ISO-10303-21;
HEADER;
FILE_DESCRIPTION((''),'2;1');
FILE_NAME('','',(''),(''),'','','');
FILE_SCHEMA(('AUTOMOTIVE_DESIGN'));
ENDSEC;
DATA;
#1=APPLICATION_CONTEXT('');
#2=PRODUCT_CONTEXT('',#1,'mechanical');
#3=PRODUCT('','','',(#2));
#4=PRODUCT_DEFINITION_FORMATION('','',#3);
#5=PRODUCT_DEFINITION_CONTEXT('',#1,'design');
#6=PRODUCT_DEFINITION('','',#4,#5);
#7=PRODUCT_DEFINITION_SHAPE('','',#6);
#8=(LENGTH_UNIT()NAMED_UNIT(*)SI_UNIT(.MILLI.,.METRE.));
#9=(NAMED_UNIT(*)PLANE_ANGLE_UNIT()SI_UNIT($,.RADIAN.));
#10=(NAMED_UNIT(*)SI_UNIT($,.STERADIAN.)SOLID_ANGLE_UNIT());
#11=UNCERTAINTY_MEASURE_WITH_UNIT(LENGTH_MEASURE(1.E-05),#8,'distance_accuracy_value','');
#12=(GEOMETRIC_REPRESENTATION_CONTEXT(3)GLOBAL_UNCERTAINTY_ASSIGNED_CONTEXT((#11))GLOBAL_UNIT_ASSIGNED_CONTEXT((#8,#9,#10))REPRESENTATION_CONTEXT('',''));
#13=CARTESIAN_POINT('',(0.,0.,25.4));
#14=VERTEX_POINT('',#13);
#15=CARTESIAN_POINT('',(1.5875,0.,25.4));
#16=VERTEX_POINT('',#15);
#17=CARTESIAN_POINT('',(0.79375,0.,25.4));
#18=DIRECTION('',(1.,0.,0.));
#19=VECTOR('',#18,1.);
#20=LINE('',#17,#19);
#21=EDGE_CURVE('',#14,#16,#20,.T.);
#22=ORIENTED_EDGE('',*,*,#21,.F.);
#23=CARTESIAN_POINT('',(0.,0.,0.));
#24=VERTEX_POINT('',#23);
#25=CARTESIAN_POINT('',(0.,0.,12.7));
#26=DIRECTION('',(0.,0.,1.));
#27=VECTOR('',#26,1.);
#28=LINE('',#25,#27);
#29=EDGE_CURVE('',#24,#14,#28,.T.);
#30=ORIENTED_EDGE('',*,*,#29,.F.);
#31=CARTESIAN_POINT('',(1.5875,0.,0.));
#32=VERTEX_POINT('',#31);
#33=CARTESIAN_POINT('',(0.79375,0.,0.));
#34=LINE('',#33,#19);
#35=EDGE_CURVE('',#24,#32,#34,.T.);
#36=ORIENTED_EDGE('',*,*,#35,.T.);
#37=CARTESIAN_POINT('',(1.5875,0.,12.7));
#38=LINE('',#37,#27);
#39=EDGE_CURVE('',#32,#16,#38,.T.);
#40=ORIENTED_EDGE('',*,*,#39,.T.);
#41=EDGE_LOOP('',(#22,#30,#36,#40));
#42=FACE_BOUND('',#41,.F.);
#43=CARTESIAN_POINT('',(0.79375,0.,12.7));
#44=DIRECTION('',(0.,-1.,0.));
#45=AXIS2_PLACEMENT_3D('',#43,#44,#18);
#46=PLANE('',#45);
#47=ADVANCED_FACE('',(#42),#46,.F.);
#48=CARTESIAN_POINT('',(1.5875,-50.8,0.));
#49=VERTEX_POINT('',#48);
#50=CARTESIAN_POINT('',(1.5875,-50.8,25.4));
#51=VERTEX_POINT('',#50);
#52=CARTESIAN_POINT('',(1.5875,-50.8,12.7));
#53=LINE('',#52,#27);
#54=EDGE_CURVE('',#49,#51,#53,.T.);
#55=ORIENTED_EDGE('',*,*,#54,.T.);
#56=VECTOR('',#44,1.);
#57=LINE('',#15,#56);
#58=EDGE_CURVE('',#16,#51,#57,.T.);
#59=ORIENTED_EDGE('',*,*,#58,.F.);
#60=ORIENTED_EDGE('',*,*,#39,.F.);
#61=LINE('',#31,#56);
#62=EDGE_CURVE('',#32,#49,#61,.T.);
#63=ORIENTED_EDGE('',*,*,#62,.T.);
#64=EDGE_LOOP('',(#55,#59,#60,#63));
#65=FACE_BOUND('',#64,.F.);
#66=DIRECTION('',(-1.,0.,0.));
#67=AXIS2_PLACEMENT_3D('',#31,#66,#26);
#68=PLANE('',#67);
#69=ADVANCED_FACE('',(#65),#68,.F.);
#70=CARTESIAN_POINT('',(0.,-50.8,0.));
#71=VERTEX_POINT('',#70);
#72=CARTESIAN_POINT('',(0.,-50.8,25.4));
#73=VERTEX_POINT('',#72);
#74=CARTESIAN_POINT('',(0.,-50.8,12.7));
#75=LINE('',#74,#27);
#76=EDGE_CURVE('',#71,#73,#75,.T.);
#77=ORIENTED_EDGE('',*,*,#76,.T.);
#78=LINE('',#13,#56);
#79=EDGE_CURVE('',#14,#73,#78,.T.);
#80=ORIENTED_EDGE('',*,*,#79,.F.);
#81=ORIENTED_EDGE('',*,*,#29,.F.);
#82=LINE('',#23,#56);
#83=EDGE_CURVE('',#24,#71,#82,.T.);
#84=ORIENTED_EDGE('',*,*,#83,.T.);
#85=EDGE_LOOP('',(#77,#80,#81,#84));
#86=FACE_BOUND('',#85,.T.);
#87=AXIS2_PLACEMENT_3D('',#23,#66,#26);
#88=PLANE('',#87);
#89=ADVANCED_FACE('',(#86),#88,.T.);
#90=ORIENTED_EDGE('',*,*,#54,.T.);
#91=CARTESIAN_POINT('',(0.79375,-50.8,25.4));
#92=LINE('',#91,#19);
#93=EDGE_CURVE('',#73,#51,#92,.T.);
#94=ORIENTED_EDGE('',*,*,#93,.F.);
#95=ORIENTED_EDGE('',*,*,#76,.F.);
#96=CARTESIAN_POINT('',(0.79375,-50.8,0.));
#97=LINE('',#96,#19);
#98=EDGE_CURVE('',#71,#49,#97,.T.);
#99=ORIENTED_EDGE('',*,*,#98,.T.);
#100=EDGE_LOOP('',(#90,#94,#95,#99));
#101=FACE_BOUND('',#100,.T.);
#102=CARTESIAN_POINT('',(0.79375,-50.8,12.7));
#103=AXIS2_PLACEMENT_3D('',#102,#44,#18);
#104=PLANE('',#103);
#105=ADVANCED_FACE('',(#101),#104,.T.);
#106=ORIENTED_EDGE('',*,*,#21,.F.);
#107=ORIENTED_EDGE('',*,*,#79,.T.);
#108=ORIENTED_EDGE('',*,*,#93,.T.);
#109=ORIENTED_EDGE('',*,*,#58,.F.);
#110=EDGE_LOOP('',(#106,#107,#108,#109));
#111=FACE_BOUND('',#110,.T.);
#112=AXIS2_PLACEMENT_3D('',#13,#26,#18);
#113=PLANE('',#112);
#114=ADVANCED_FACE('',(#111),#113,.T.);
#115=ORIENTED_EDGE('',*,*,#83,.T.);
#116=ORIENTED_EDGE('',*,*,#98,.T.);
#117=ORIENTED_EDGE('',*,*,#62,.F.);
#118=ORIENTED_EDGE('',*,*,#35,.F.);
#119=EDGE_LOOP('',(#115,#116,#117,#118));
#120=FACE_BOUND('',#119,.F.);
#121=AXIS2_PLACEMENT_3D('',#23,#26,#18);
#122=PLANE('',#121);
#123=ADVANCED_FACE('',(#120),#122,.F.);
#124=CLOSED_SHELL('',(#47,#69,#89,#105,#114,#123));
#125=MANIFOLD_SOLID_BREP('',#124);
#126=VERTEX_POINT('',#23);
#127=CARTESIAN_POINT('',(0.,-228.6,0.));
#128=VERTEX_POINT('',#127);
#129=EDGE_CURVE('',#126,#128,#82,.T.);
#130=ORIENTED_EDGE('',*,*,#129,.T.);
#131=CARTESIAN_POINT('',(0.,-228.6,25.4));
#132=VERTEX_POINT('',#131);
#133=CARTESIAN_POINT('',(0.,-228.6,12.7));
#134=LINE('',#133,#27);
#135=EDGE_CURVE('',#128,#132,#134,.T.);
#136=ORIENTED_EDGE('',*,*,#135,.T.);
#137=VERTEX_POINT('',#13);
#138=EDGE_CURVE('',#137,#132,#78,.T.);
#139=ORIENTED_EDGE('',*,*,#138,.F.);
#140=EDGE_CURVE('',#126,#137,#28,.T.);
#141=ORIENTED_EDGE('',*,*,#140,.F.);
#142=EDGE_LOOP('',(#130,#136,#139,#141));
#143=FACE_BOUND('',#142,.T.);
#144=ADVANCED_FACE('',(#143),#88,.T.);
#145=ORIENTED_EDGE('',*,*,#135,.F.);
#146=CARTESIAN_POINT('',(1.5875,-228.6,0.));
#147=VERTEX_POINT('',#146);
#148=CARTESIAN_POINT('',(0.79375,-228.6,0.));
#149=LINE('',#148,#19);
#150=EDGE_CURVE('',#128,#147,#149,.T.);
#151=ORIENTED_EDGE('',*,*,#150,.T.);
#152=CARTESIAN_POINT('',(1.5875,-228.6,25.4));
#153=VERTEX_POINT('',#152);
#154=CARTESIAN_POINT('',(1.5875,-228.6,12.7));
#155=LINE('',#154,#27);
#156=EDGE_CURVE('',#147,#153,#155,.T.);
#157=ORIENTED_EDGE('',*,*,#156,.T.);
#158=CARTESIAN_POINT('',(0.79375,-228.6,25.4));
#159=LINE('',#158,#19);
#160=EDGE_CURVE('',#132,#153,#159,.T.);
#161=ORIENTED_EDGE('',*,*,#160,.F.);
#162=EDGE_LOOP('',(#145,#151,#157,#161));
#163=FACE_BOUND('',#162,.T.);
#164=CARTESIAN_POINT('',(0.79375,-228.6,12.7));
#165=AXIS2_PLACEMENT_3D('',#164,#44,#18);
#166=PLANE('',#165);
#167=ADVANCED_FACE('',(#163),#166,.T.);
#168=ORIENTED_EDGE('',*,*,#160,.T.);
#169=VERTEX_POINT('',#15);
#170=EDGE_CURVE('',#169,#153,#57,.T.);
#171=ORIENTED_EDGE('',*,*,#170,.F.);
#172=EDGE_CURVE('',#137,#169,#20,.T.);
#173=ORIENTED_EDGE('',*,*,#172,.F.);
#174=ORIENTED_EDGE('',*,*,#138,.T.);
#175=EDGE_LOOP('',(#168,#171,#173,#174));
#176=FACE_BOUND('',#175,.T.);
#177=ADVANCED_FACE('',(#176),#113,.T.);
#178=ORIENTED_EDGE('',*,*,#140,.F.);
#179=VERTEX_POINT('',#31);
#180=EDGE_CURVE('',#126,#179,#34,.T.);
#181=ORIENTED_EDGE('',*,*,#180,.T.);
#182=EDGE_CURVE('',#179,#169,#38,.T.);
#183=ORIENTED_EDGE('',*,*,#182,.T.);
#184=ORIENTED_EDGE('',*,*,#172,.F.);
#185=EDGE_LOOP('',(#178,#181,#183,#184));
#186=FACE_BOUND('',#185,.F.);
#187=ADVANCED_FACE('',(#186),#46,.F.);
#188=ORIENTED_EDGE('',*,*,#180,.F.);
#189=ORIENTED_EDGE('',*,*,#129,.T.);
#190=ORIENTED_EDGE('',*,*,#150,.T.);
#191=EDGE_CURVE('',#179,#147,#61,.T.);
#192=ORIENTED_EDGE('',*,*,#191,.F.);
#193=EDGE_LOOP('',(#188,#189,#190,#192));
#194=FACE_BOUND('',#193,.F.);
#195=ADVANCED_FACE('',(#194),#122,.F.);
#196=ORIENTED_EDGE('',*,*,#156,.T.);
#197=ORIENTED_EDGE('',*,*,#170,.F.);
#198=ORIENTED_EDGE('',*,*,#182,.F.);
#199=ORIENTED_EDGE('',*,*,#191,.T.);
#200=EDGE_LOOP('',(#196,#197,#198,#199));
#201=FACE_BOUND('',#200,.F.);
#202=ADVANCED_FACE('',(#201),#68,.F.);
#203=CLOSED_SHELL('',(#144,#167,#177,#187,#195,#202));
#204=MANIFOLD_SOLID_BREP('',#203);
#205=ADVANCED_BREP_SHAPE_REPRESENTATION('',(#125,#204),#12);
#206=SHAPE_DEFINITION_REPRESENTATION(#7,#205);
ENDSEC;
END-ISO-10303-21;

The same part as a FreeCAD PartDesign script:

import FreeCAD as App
import Part
import Sketcher
Q = App.Units.Quantity


def add_polygon(sketch, points):
    """Adds a closed chain of lines whose ends are joined by coincident constraints."""
    first, n = sketch.GeometryCount, len(points)
    for a, b in zip(points, points[1:] + points[:1]):
        sketch.addGeometry(Part.LineSegment(App.Vector(*a, 0), App.Vector(*b, 0)), False)
    for i in range(n):
        sketch.addConstraint(Sketcher.Constraint("Coincident", first + i, 2, first + (i + 1) % n, 1))

doc = App.newDocument("Part")
body = doc.addObject("PartDesign::Body", "Body")

# Sketch on XZ plane
sketch1 = doc.addObject("Sketcher::SketchObject", "Sketch")
body.addObject(sketch1)
sketch1.AttachmentSupport = (doc.XZ_Plane, [""])
sketch1.MapMode = "FlatFace"
add_polygon(sketch1, [(0, 25.4), (0, 0), (1.6, 0), (1.6, 25.4)])  # lines 0-3
sketch1.addConstraint(Sketcher.Constraint("Vertical", 0))
sketch1.addConstraint(Sketcher.Constraint("Horizontal", 1))
sketch1.addConstraint(Sketcher.Constraint("Vertical", 2))
sketch1.addConstraint(Sketcher.Constraint("Horizontal", 3))
sketch1.addConstraint(Sketcher.Constraint("Coincident", 0, 2, -1, 1))
sketch1.addConstraint(Sketcher.Constraint("DistanceY", 0, 2, 0, 1, Q("1 in")))
sketch1.addConstraint(Sketcher.Constraint("DistanceX", 1, 1, 1, 2, Q("0.0625 in")))
pad1 = doc.addObject("PartDesign::Pad", "Pad")
body.addObject(pad1)
pad1.Profile = sketch1
pad1.Length = Q("9 in")
body2 = doc.addObject("PartDesign::Body", "Body001")

# Sketch on XZ plane
sketch2 = doc.addObject("Sketcher::SketchObject", "Sketch001")
body2.addObject(sketch2)
sketch2.AttachmentSupport = (doc.getObject("XZ_Plane001"), [""])
sketch2.MapMode = "FlatFace"
add_polygon(sketch2, [(0, 25.4), (0, 0), (1.6, 0), (1.6, 25.4)])  # lines 0-3
sketch2.addConstraint(Sketcher.Constraint("Vertical", 0))
sketch2.addConstraint(Sketcher.Constraint("Horizontal", 1))
sketch2.addConstraint(Sketcher.Constraint("Vertical", 2))
sketch2.addConstraint(Sketcher.Constraint("Horizontal", 3))
sketch2.addConstraint(Sketcher.Constraint("Coincident", 0, 2, -1, 1))
sketch2.addConstraint(Sketcher.Constraint("DistanceY", 0, 2, 0, 1, Q("1 in")))
sketch2.addConstraint(Sketcher.Constraint("DistanceX", 1, 1, 1, 2, Q("0.0625 in")))
pad2 = doc.addObject("PartDesign::Pad", "Pad001")
body2.addObject(pad2)
pad2.Profile = sketch2
pad2.Length = Q("2 in")
body3 = doc.addObject("PartDesign::Body", "Body002")

# Sketch on XZ plane
sketch3 = doc.addObject("Sketcher::SketchObject", "Sketch002")
body3.addObject(sketch3)
sketch3.AttachmentSupport = (doc.getObject("XZ_Plane002"), [""])
sketch3.MapMode = "FlatFace"
add_polygon(sketch3, [(0, 25.4), (0, 0), (1.6, 0), (1.6, 25.4)])  # lines 0-3
sketch3.addConstraint(Sketcher.Constraint("Vertical", 0))
sketch3.addConstraint(Sketcher.Constraint("Horizontal", 1))
sketch3.addConstraint(Sketcher.Constraint("Vertical", 2))
sketch3.addConstraint(Sketcher.Constraint("Horizontal", 3))
sketch3.addConstraint(Sketcher.Constraint("Coincident", 0, 2, -1, 1))
sketch3.addConstraint(Sketcher.Constraint("DistanceY", 0, 2, 0, 1, Q("1 in")))
sketch3.addConstraint(Sketcher.Constraint("DistanceX", 1, 1, 1, 2, Q("0.0625 in")))
pad3 = doc.addObject("PartDesign::Pad", "Pad002")
body3.addObject(pad3)
pad3.Profile = sketch3
pad3.Length = Q("1 in")
body3.Visibility = False

doc.recompute()
